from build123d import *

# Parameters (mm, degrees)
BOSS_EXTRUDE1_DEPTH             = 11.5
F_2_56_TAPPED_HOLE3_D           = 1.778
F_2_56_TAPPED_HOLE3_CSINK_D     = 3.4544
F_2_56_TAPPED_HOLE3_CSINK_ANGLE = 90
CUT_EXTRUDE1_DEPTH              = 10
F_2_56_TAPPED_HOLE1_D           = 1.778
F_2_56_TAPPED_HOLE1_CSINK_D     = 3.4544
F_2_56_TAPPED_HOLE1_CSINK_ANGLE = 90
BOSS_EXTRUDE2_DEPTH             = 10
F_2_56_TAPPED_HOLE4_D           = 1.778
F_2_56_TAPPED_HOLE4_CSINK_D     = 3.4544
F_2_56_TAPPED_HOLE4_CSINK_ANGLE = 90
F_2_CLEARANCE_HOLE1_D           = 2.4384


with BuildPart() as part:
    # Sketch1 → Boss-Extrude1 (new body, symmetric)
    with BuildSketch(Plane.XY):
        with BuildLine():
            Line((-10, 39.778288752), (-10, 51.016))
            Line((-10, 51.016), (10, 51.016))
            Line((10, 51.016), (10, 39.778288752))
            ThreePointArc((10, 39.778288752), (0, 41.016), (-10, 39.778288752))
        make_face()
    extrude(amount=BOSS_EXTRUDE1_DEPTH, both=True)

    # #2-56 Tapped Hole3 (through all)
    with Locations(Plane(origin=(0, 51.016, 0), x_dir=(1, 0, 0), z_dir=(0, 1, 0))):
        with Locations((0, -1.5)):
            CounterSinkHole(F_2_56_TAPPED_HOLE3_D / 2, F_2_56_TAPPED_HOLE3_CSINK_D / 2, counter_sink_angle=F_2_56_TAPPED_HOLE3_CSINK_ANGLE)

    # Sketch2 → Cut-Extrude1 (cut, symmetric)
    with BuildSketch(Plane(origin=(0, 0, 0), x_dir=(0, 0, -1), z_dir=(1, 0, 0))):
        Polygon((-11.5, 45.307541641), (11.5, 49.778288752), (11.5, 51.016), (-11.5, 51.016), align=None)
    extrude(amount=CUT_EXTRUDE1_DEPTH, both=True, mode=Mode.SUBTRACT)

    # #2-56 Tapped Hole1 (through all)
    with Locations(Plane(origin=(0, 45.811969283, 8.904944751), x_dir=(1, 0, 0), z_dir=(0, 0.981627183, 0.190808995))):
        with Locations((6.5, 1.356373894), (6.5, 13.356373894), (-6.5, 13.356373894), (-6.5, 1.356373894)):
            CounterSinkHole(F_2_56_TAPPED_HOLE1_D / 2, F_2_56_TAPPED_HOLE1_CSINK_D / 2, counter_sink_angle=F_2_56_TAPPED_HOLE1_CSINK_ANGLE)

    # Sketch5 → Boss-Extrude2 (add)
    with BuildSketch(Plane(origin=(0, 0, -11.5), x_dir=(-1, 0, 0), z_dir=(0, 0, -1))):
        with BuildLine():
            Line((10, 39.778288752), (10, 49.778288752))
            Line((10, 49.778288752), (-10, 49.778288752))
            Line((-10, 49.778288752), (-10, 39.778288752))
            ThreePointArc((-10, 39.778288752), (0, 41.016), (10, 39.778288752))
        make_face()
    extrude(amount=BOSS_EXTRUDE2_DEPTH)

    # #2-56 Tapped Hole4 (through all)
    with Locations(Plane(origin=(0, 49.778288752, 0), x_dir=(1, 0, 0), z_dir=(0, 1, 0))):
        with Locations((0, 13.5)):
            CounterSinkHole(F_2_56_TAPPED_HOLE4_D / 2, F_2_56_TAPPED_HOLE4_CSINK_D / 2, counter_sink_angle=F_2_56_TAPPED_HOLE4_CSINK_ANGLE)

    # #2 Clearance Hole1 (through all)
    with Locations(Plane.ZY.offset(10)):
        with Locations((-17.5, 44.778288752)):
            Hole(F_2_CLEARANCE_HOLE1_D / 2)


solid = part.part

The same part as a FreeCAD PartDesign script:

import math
import FreeCAD as App
import Part
import Sketcher
from FreeCAD import Vector
Q = App.Units.Quantity

doc = App.newDocument("Part")
body = doc.addObject("PartDesign::Body", "Body")

# Sketch on XY plane
sketch1 = doc.addObject("Sketcher::SketchObject", "Sketch")
body.addObject(sketch1)
sketch1.AttachmentSupport = (doc.XY_Plane, [""])
sketch1.MapMode = "FlatFace"
sketch1.addGeometry(Part.LineSegment(Vector(-10, 51, 0), Vector(-10, 40, 0)), False)
sketch1.addGeometry(Part.ArcOfCircle(Part.Circle(Vector(0, 0, 0), Vector(0, 0, 1), 41), math.radians(76), math.radians(104)), False)
sketch1.addGeometry(Part.LineSegment(Vector(10, 40, 0), Vector(10, 51, 0)), False)
sketch1.addGeometry(Part.LineSegment(Vector(10, 51, 0), Vector(-10, 51, 0)), False)
sketch1.addConstraint(Sketcher.Constraint("Coincident", 0, 2, 1, 2))
sketch1.addConstraint(Sketcher.Constraint("Coincident", 1, 1, 2, 1))
sketch1.addConstraint(Sketcher.Constraint("Coincident", 2, 2, 3, 1))
sketch1.addConstraint(Sketcher.Constraint("Coincident", 3, 2, 0, 1))
sketch1.addConstraint(Sketcher.Constraint("Vertical", 0))
sketch1.addConstraint(Sketcher.Constraint("Vertical", 2))
sketch1.addConstraint(Sketcher.Constraint("Horizontal", 3))
sketch1.addConstraint(Sketcher.Constraint("Coincident", 1, 3, -1, 1))
sketch1.addConstraint(Sketcher.Constraint("Horizontal", 0, 2, 1, 1))
sketch1.addConstraint(Sketcher.Constraint("DistanceX", 3, 2, 3, 1, Q("20 mm")))
sketch1.addConstraint(Sketcher.Constraint("Radius", 1, Q("41.016 mm")))
sketch1.addConstraint(Sketcher.Constraint("DistanceY", -1, 1, 2, 2, Q("51.016 mm")))
pad1 = doc.addObject("PartDesign::Pad", "Pad")
body.addObject(pad1)
pad1.Profile = sketch1
pad1.Length = 23
pad1.Midplane = True

# Sketch on XZ plane
sketch2 = doc.addObject("Sketcher::SketchObject", "Sketch001")
body.addObject(sketch2)
sketch2.AttachmentSupport = (doc.XZ_Plane, [""])
sketch2.MapMode = "FlatFace"
sketch2.AttachmentOffset = App.Placement(Vector(0, 0, -51.016), App.Rotation())
sketch2.addGeometry(Part.Circle(Vector(0, 1.5, 0), Vector(0, 0, 1), 0.9), False)
sketch2.addConstraint(Sketcher.Constraint("PointOnObject", 0, 3, -2))
sketch2.addConstraint(Sketcher.Constraint("Diameter", 0, Q("1.778 mm")))
sketch2.addConstraint(Sketcher.Constraint("DistanceY", -1, 1, 0, 3, Q("1.5 mm")))
doc.recompute()
hole = doc.addObject("PartDesign::Hole", "Hole")
body.addObject(hole)
hole.Profile = sketch2
hole.ThreadType = "None"
hole.Diameter = 1.778
hole.DepthType = "ThroughAll"
hole.HoleCutType = "Countersink"
hole.HoleCutDiameter = 3.4544
hole.HoleCutCountersinkAngle = 90
hole.Reversed = True

# Sketch on YZ plane
sketch3 = doc.addObject("Sketcher::SketchObject", "Sketch002")
body.addObject(sketch3)
sketch3.AttachmentSupport = (doc.YZ_Plane, [""])
sketch3.MapMode = "FlatFace"
sketch3.addGeometry(Part.LineSegment(Vector(45.3, 11.5, 0), Vector(49.8, -11.5, 0)), False)
sketch3.addGeometry(Part.LineSegment(Vector(49.8, -11.5, 0), Vector(51, -11.5, 0)), False)
sketch3.addGeometry(Part.LineSegment(Vector(51, -11.5, 0), Vector(51, 11.5, 0)), False)
sketch3.addGeometry(Part.LineSegment(Vector(51, 11.5, 0), Vector(45.3, 11.5, 0)), False)
sketch3.addConstraint(Sketcher.Constraint("Coincident", 0, 2, 1, 1))
sketch3.addConstraint(Sketcher.Constraint("Coincident", 1, 2, 2, 1))
sketch3.addConstraint(Sketcher.Constraint("Coincident", 2, 2, 3, 1))
sketch3.addConstraint(Sketcher.Constraint("Coincident", 3, 2, 0, 1))
sketch3.addConstraint(Sketcher.Constraint("Horizontal", 1))
sketch3.addConstraint(Sketcher.Constraint("Vertical", 2))
sketch3.addConstraint(Sketcher.Constraint("Horizontal", 3))
sketch3.addConstraint(Sketcher.Constraint("DistanceY", 2, 1, 2, 2, Q("23 mm")))
sketch3.addConstraint(Sketcher.Constraint("Angle", 0, Q("-79 deg")))
sketch3.addConstraint(Sketcher.Constraint("DistanceY", 0, 2, -1, 1, Q("11.5 mm")))
sketch3.addConstraint(Sketcher.Constraint("DistanceX", -1, 1, 1, 2, Q("51.016 mm")))
sketch3.addConstraint(Sketcher.Constraint("DistanceX", 1, 1, 1, 2, Q("1.237711 mm")))
pocket1 = doc.addObject("PartDesign::Pocket", "Pocket")
body.addObject(pocket1)
pocket1.Profile = sketch3
pocket1.Length = 20
pocket1.Midplane = True

# Sketch on an angled plane
sketch4 = doc.addObject("Sketcher::SketchObject", "Sketch003")
body.addObject(sketch4)
sketch4.Placement = App.Placement(Vector(0, 45.811969, 8.904945), App.Rotation(Vector(1, 0, 0), Vector(0, 0.190808995, -0.981627184), Vector(0, 0.981627184, 0.190808995), "ZXY"))
sketch4.addGeometry(Part.Circle(Vector(6.5, 1.4, 0), Vector(0, 0, 1), 0.9), False)
sketch4.addGeometry(Part.Circle(Vector(6.5, 13.4, 0), Vector(0, 0, 1), 0.9), False)
sketch4.addGeometry(Part.Circle(Vector(-6.5, 13.4, 0), Vector(0, 0, 1), 0.9), False)
sketch4.addGeometry(Part.Circle(Vector(-6.5, 1.4, 0), Vector(0, 0, 1), 0.9), False)
sketch4.addConstraint(Sketcher.Constraint("Equal", 0, 1))
sketch4.addConstraint(Sketcher.Constraint("Equal", 1, 2))
sketch4.addConstraint(Sketcher.Constraint("Equal", 2, 3))
sketch4.addConstraint(Sketcher.Constraint("Symmetric", 1, 3, 2, 3, -2))
sketch4.addConstraint(Sketcher.Constraint("Symmetric", 0, 3, 3, 3, -2))
sketch4.addConstraint(Sketcher.Constraint("Vertical", 0, 3, 1, 3))
sketch4.addConstraint(Sketcher.Constraint("Diameter", 0, Q("1.778 mm")))
sketch4.addConstraint(Sketcher.Constraint("DistanceY", 0, 3, 1, 3, Q("12 mm")))
sketch4.addConstraint(Sketcher.Constraint("DistanceX", 2, 3, 1, 3, Q("13 mm")))
sketch4.addConstraint(Sketcher.Constraint("DistanceY", -1, 1, 0, 3, Q("1.356374 mm")))
doc.recompute()
hole2 = doc.addObject("PartDesign::Hole", "Hole001")
body.addObject(hole2)
hole2.Profile = sketch4
hole2.ThreadType = "None"
hole2.Diameter = 1.778
hole2.DepthType = "ThroughAll"
hole2.HoleCutType = "Countersink"
hole2.HoleCutDiameter = 3.4544
hole2.HoleCutCountersinkAngle = 90

# Sketch on XY plane
sketch5 = doc.addObject("Sketcher::SketchObject", "Sketch004")
body.addObject(sketch5)
sketch5.AttachmentSupport = (doc.XY_Plane, [""])
sketch5.MapMode = "FlatFace"
sketch5.AttachmentOffset = App.Placement(Vector(0, 0, -11.5), App.Rotation())
sketch5.addGeometry(Part.LineSegment(Vector(-10, 40, 0), Vector(-10, 50, 0)), False)
sketch5.addGeometry(Part.LineSegment(Vector(-10, 50, 0), Vector(10, 50, 0)), False)
sketch5.addGeometry(Part.LineSegment(Vector(10, 50, 0), Vector(10, 40, 0)), False)
sketch5.addGeometry(Part.ArcOfCircle(Part.Circle(Vector(0, 0, 0), Vector(0, 0, 1), 41), math.radians(76), math.radians(104)), False)
sketch5.addConstraint(Sketcher.Constraint("Coincident", 0, 2, 1, 1))
sketch5.addConstraint(Sketcher.Constraint("Coincident", 1, 2, 2, 1))
sketch5.addConstraint(Sketcher.Constraint("Coincident", 2, 2, 3, 1))
sketch5.addConstraint(Sketcher.Constraint("Coincident", 3, 2, 0, 1))
sketch5.addConstraint(Sketcher.Constraint("Vertical", 0))
sketch5.addConstraint(Sketcher.Constraint("Horizontal", 1))
sketch5.addConstraint(Sketcher.Constraint("Vertical", 2))
sketch5.addConstraint(Sketcher.Constraint("Coincident", 3, 3, -1, 1))
sketch5.addConstraint(Sketcher.Constraint("Horizontal", 2, 2, 3, 2))
sketch5.addConstraint(Sketcher.Constraint("DistanceX", 1, 1, 1, 2, Q("20 mm")))
sketch5.addConstraint(Sketcher.Constraint("DistanceY", 0, 1, 0, 2, Q("10 mm")))
sketch5.addConstraint(Sketcher.Constraint("Radius", 3, Q("41.016 mm")))
pad2 = doc.addObject("PartDesign::Pad", "Pad001")
body.addObject(pad2)
pad2.Profile = sketch5
pad2.Length = 10
pad2.Reversed = True

# Sketch on XZ plane
sketch6 = doc.addObject("Sketcher::SketchObject", "Sketch005")
body.addObject(sketch6)
sketch6.AttachmentSupport = (doc.XZ_Plane, [""])
sketch6.MapMode = "FlatFace"
sketch6.AttachmentOffset = App.Placement(Vector(0, 0, -49.778289), App.Rotation())
sketch6.addGeometry(Part.Circle(Vector(0, -13.5, 0), Vector(0, 0, 1), 0.9), False)
sketch6.addConstraint(Sketcher.Constraint("PointOnObject", 0, 3, -2))
sketch6.addConstraint(Sketcher.Constraint("Diameter", 0, Q("1.778 mm")))
sketch6.addConstraint(Sketcher.Constraint("DistanceY", 0, 3, -1, 1, Q("13.5 mm")))
doc.recompute()
hole3 = doc.addObject("PartDesign::Hole", "Hole002")
body.addObject(hole3)
hole3.Profile = sketch6
hole3.ThreadType = "None"
hole3.Diameter = 1.778
hole3.DepthType = "ThroughAll"
hole3.HoleCutType = "Countersink"
hole3.HoleCutDiameter = 3.4544
hole3.HoleCutCountersinkAngle = 90
hole3.Reversed = True

# Sketch on YZ plane
sketch7 = doc.addObject("Sketcher::SketchObject", "Sketch006")
body.addObject(sketch7)
sketch7.AttachmentSupport = (doc.YZ_Plane, [""])
sketch7.MapMode = "FlatFace"
sketch7.AttachmentOffset = App.Placement(Vector(0, 0, -10), App.Rotation())
sketch7.addGeometry(Part.Circle(Vector(44.8, -17.5, 0), Vector(0, 0, 1), 1.2), False)
sketch7.addConstraint(Sketcher.Constraint("Diameter", 0, Q("2.4384 mm")))
sketch7.addConstraint(Sketcher.Constraint("DistanceY", 0, 3, -1, 1, Q("17.5 mm")))
sketch7.addConstraint(Sketcher.Constraint("DistanceX", -1, 1, 0, 3, Q("44.778289 mm")))
doc.recompute()
hole4 = doc.addObject("PartDesign::Hole", "Hole003")
body.addObject(hole4)
hole4.Profile = sketch7
hole4.ThreadType = "None"
hole4.Diameter = 2.4384
hole4.DepthType = "ThroughAll"
hole4.Reversed = True

doc.recompute()
